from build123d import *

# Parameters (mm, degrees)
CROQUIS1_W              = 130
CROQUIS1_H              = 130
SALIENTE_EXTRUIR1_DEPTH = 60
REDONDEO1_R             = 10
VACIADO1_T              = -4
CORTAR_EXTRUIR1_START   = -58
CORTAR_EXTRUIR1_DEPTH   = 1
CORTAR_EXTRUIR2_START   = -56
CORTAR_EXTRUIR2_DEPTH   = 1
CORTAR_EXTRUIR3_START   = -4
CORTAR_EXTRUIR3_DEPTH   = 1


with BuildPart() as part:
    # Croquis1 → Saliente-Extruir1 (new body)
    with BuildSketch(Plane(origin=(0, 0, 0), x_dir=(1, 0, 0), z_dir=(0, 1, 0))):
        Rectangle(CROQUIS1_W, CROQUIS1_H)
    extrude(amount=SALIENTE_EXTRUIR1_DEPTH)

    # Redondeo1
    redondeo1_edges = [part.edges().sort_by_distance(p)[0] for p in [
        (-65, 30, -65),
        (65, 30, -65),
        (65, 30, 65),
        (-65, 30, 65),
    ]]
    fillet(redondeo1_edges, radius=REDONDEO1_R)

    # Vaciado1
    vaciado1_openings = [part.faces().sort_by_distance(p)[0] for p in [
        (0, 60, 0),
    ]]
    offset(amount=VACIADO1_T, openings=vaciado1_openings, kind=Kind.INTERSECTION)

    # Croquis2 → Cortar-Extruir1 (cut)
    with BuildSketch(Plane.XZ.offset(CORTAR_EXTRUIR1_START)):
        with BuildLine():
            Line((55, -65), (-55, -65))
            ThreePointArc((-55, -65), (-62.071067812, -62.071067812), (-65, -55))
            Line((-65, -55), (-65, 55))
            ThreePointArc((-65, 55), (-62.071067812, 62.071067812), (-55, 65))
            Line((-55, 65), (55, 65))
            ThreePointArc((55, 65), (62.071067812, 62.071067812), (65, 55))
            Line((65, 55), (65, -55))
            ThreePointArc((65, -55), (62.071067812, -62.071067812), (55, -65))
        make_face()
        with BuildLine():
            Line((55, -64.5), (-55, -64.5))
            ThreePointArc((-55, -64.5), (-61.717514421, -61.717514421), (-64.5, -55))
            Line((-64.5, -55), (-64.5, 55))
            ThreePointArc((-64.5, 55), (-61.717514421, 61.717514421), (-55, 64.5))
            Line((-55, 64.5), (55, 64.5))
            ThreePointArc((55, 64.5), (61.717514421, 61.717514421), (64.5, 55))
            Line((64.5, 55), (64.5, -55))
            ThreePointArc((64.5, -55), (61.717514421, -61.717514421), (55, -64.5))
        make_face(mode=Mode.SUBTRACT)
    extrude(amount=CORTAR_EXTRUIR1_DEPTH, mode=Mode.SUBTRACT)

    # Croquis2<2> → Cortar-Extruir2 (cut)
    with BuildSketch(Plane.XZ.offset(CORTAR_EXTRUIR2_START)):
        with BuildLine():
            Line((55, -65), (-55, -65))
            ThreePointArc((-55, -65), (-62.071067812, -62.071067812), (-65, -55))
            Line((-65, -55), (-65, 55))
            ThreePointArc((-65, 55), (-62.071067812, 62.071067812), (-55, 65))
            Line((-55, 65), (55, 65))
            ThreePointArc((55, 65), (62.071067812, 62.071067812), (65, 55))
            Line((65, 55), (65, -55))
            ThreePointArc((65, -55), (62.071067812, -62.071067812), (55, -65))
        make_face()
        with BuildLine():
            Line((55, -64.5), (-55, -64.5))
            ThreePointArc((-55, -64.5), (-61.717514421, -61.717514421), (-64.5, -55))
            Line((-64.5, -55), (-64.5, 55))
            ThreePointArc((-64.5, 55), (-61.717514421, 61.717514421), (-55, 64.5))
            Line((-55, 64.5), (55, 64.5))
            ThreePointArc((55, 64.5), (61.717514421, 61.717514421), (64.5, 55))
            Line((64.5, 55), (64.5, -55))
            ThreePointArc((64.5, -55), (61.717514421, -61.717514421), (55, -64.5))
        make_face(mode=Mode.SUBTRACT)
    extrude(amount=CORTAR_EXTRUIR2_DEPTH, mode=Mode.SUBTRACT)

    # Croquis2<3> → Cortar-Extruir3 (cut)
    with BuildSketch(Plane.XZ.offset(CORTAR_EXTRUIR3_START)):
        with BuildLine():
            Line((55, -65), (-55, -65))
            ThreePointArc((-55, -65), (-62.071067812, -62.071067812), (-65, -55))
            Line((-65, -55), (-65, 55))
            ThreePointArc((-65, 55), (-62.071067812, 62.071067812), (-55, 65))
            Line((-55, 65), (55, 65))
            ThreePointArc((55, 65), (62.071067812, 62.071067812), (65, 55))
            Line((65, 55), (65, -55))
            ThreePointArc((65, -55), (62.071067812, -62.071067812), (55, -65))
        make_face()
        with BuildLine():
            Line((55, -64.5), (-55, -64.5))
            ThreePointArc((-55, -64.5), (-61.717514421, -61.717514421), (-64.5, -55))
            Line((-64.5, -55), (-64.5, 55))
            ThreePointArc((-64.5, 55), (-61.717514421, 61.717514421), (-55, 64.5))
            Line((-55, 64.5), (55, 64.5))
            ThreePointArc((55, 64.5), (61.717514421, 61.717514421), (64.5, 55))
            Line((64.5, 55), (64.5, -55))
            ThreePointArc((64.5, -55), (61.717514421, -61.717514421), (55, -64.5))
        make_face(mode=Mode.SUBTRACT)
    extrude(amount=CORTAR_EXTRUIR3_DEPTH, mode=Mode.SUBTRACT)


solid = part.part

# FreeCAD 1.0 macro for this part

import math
import FreeCAD as App
import Part
import Sketcher


def edges_at(feature, points):
    """Names of the edges that pass closest to the given points."""
    edges = feature.Shape.Edges
    near = lambda p: min(range(len(edges)), key=lambda i: edges[i].distToShape(Part.Vertex(*p))[0])
    return sorted({f"Edge{near(p) + 1}" for p in points})


def faces_at(feature, points):
    """Names of the faces that lie closest to the given points."""
    faces = feature.Shape.Faces
    near = lambda p: min(range(len(faces)), key=lambda i: faces[i].distToShape(Part.Vertex(*p))[0])
    return sorted({f"Face{near(p) + 1}" for p in points})

doc = App.newDocument("Part")
body = doc.addObject("PartDesign::Body", "Body")

sketch1 = doc.addObject("Sketcher::SketchObject", "Sketch")
body.addObject(sketch1)
sketch1.AttachmentSupport = (doc.XZ_Plane, [""])
sketch1.MapMode = "FlatFace"
sketch1.addGeometry(Part.LineSegment(App.Vector(-65, -65, 0), App.Vector(-65, 65, 0)), False)
sketch1.addGeometry(Part.LineSegment(App.Vector(-65, 65, 0), App.Vector(65, 65, 0)), False)
sketch1.addGeometry(Part.LineSegment(App.Vector(65, 65, 0), App.Vector(65, -65, 0)), False)
sketch1.addGeometry(Part.LineSegment(App.Vector(65, -65, 0), App.Vector(-65, -65, 0)), False)
sketch1.addConstraint(Sketcher.Constraint("Coincident", 0, 2, 1, 1))
sketch1.addConstraint(Sketcher.Constraint("Coincident", 1, 2, 2, 1))
sketch1.addConstraint(Sketcher.Constraint("Coincident", 2, 2, 3, 1))
sketch1.addConstraint(Sketcher.Constraint("Coincident", 3, 2, 0, 1))
sketch1.addConstraint(Sketcher.Constraint("Vertical", 0))
sketch1.addConstraint(Sketcher.Constraint("Horizontal", 1))
sketch1.addConstraint(Sketcher.Constraint("Vertical", 2))
sketch1.addConstraint(Sketcher.Constraint("Horizontal", 3))
sketch1.addConstraint(Sketcher.Constraint("Symmetric", 0, 2, 2, 2, -1, 1))
sketch1.addConstraint(Sketcher.Constraint("Equal", 3, 0))
sketch1.addConstraint(Sketcher.Constraint("DistanceX", 1, 1, 1, 2, 130.0))
pad1 = doc.addObject("PartDesign::Pad", "Pad")
body.addObject(pad1)
pad1.Profile = sketch1
pad1.Length = 60
pad1.Reversed = True
doc.recompute()

fillet = doc.addObject("PartDesign::Fillet", "Fillet")
body.addObject(fillet)
fillet.Base = (pad1, edges_at(pad1, [
    (-65, 30, -65),
    (65, 30, -65),
    (65, 30, 65),
    (-65, 30, 65),
]))
fillet.Radius = 10
doc.recompute()

thickness = doc.addObject("PartDesign::Thickness", "Thickness")
body.addObject(thickness)
thickness.Base = (fillet, faces_at(fillet, [(0, 60, 0)]))
thickness.Value = 4
thickness.Reversed = True
thickness.Join = "Intersection"

sketch2 = doc.addObject("Sketcher::SketchObject", "Sketch001")
body.addObject(sketch2)
sketch2.AttachmentSupport = (doc.XZ_Plane, [""])
sketch2.MapMode = "FlatFace"
sketch2.AttachmentOffset = App.Placement(App.Vector(0, 0, -58), App.Rotation())
sketch2.addGeometry(Part.LineSegment(App.Vector(-55, -65, 0), App.Vector(55, -65, 0)), False)
sketch2.addGeometry(Part.ArcOfCircle(Part.Circle(App.Vector(55, -55, 0), App.Vector(0, 0, 1), 10), math.radians(-90), math.radians(0)), False)
sketch2.addGeometry(Part.LineSegment(App.Vector(65, -55, 0), App.Vector(65, 55, 0)), False)
sketch2.addGeometry(Part.ArcOfCircle(Part.Circle(App.Vector(55, 55, 0), App.Vector(0, 0, 1), 10), math.radians(0), math.radians(90)), False)
sketch2.addGeometry(Part.LineSegment(App.Vector(55, 65, 0), App.Vector(-55, 65, 0)), False)
sketch2.addGeometry(Part.ArcOfCircle(Part.Circle(App.Vector(-55, 55, 0), App.Vector(0, 0, 1), 10), math.radians(90), math.radians(180)), False)
sketch2.addGeometry(Part.LineSegment(App.Vector(-65, 55, 0), App.Vector(-65, -55, 0)), False)
sketch2.addGeometry(Part.ArcOfCircle(Part.Circle(App.Vector(-55, -55, 0), App.Vector(0, 0, 1), 10), math.radians(180), math.radians(270)), False)
sketch2.addGeometry(Part.LineSegment(App.Vector(55, -64.5, 0), App.Vector(-55, -64.5, 0)), False)
sketch2.addGeometry(Part.ArcOfCircle(Part.Circle(App.Vector(-55, -55, 0), App.Vector(0, 0, 1), 9.5), math.radians(-180), math.radians(-90)), False)
sketch2.addGeometry(Part.LineSegment(App.Vector(-64.5, -55, 0), App.Vector(-64.5, 55, 0)), False)
sketch2.addGeometry(Part.ArcOfCircle(Part.Circle(App.Vector(-55, 55, 0), App.Vector(0, 0, 1), 9.5), math.radians(90), math.radians(180)), False)
sketch2.addGeometry(Part.LineSegment(App.Vector(-55, 64.5, 0), App.Vector(55, 64.5, 0)), False)
sketch2.addGeometry(Part.ArcOfCircle(Part.Circle(App.Vector(55, 55, 0), App.Vector(0, 0, 1), 9.5), math.radians(0), math.radians(90)), False)
sketch2.addGeometry(Part.LineSegment(App.Vector(64.5, 55, 0), App.Vector(64.5, -55, 0)), False)
sketch2.addGeometry(Part.ArcOfCircle(Part.Circle(App.Vector(55, -55, 0), App.Vector(0, 0, 1), 9.5), math.radians(-90), math.radians(0)), False)
sketch2.addConstraint(Sketcher.Constraint("Tangent", 0, 2, 1, 1))
sketch2.addConstraint(Sketcher.Constraint("Tangent", 1, 2, 2, 1))
sketch2.addConstraint(Sketcher.Constraint("Tangent", 2, 2, 3, 1))
sketch2.addConstraint(Sketcher.Constraint("Tangent", 3, 2, 4, 1))
sketch2.addConstraint(Sketcher.Constraint("Tangent", 4, 2, 5, 1))
sketch2.addConstraint(Sketcher.Constraint("Tangent", 5, 2, 6, 1))
sketch2.addConstraint(Sketcher.Constraint("Tangent", 6, 2, 7, 1))
sketch2.addConstraint(Sketcher.Constraint("Tangent", 7, 2, 0, 1))
sketch2.addConstraint(Sketcher.Constraint("Tangent", 8, 2, 9, 2))
sketch2.addConstraint(Sketcher.Constraint("Tangent", 9, 1, 10, 1))
sketch2.addConstraint(Sketcher.Constraint("Tangent", 10, 2, 11, 2))
sketch2.addConstraint(Sketcher.Constraint("Tangent", 11, 1, 12, 1))
sketch2.addConstraint(Sketcher.Constraint("Tangent", 12, 2, 13, 2))
sketch2.addConstraint(Sketcher.Constraint("Tangent", 13, 1, 14, 1))
sketch2.addConstraint(Sketcher.Constraint("Tangent", 14, 2, 15, 2))
sketch2.addConstraint(Sketcher.Constraint("Tangent", 15, 1, 8, 1))
sketch2.addConstraint(Sketcher.Constraint("Horizontal", 0))
sketch2.addConstraint(Sketcher.Constraint("Vertical", 2))
sketch2.addConstraint(Sketcher.Constraint("Horizontal", 4))
sketch2.addConstraint(Sketcher.Constraint("Vertical", 6))
sketch2.addConstraint(Sketcher.Constraint("Horizontal", 8))
sketch2.addConstraint(Sketcher.Constraint("Vertical", 10))
sketch2.addConstraint(Sketcher.Constraint("Horizontal", 12))
sketch2.addConstraint(Sketcher.Constraint("Vertical", 14))
sketch2.addConstraint(Sketcher.Constraint("Coincident", 9, 3, 7, 3))
sketch2.addConstraint(Sketcher.Constraint("Coincident", 11, 3, 5, 3))
sketch2.addConstraint(Sketcher.Constraint("Coincident", 13, 3, 3, 3))
sketch2.addConstraint(Sketcher.Constraint("Equal", 1, 3))
sketch2.addConstraint(Sketcher.Constraint("Equal", 3, 5))
sketch2.addConstraint(Sketcher.Constraint("Equal", 5, 7))
sketch2.addConstraint(Sketcher.Constraint("Equal", 13, 15))
sketch2.addConstraint(Sketcher.Constraint("Symmetric", 1, 3, 5, 3, -1, 1))
sketch2.addConstraint(Sketcher.Constraint("Equal", 12, 2))
sketch2.addConstraint(Sketcher.Constraint("Radius", 1, 10.0))
sketch2.addConstraint(Sketcher.Constraint("Radius", 9, 9.5))
sketch2.addConstraint(Sketcher.Constraint("DistanceX", 0, 1, 0, 2, 110.0))
pocket1 = doc.addObject("PartDesign::Pocket", "Pocket")
body.addObject(pocket1)
pocket1.Profile = sketch2
pocket1.Length = 1
pocket1.Reversed = True

sketch3 = doc.addObject("Sketcher::SketchObject", "Sketch002")
body.addObject(sketch3)
sketch3.AttachmentSupport = (doc.XZ_Plane, [""])
sketch3.MapMode = "FlatFace"
sketch3.AttachmentOffset = App.Placement(App.Vector(0, 0, -56), App.Rotation())
sketch3.addGeometry(Part.LineSegment(App.Vector(-55, -65, 0), App.Vector(55, -65, 0)), False)
sketch3.addGeometry(Part.ArcOfCircle(Part.Circle(App.Vector(55, -55, 0), App.Vector(0, 0, 1), 10), math.radians(-90), math.radians(0)), False)
sketch3.addGeometry(Part.LineSegment(App.Vector(65, -55, 0), App.Vector(65, 55, 0)), False)
sketch3.addGeometry(Part.ArcOfCircle(Part.Circle(App.Vector(55, 55, 0), App.Vector(0, 0, 1), 10), math.radians(0), math.radians(90)), False)
sketch3.addGeometry(Part.LineSegment(App.Vector(55, 65, 0), App.Vector(-55, 65, 0)), False)
sketch3.addGeometry(Part.ArcOfCircle(Part.Circle(App.Vector(-55, 55, 0), App.Vector(0, 0, 1), 10), math.radians(90), math.radians(180)), False)
sketch3.addGeometry(Part.LineSegment(App.Vector(-65, 55, 0), App.Vector(-65, -55, 0)), False)
sketch3.addGeometry(Part.ArcOfCircle(Part.Circle(App.Vector(-55, -55, 0), App.Vector(0, 0, 1), 10), math.radians(180), math.radians(270)), False)
sketch3.addGeometry(Part.LineSegment(App.Vector(55, -64.5, 0), App.Vector(-55, -64.5, 0)), False)
sketch3.addGeometry(Part.ArcOfCircle(Part.Circle(App.Vector(-55, -55, 0), App.Vector(0, 0, 1), 9.5), math.radians(-180), math.radians(-90)), False)
sketch3.addGeometry(Part.LineSegment(App.Vector(-64.5, -55, 0), App.Vector(-64.5, 55, 0)), False)
sketch3.addGeometry(Part.ArcOfCircle(Part.Circle(App.Vector(-55, 55, 0), App.Vector(0, 0, 1), 9.5), math.radians(90), math.radians(180)), False)
sketch3.addGeometry(Part.LineSegment(App.Vector(-55, 64.5, 0), App.Vector(55, 64.5, 0)), False)
sketch3.addGeometry(Part.ArcOfCircle(Part.Circle(App.Vector(55, 55, 0), App.Vector(0, 0, 1), 9.5), math.radians(0), math.radians(90)), False)
sketch3.addGeometry(Part.LineSegment(App.Vector(64.5, 55, 0), App.Vector(64.5, -55, 0)), False)
sketch3.addGeometry(Part.ArcOfCircle(Part.Circle(App.Vector(55, -55, 0), App.Vector(0, 0, 1), 9.5), math.radians(-90), math.radians(0)), False)
sketch3.addConstraint(Sketcher.Constraint("Tangent", 0, 2, 1, 1))
sketch3.addConstraint(Sketcher.Constraint("Tangent", 1, 2, 2, 1))
sketch3.addConstraint(Sketcher.Constraint("Tangent", 2, 2, 3, 1))
sketch3.addConstraint(Sketcher.Constraint("Tangent", 3, 2, 4, 1))
sketch3.addConstraint(Sketcher.Constraint("Tangent", 4, 2, 5, 1))
sketch3.addConstraint(Sketcher.Constraint("Tangent", 5, 2, 6, 1))
sketch3.addConstraint(Sketcher.Constraint("Tangent", 6, 2, 7, 1))
sketch3.addConstraint(Sketcher.Constraint("Tangent", 7, 2, 0, 1))
sketch3.addConstraint(Sketcher.Constraint("Tangent", 8, 2, 9, 2))
sketch3.addConstraint(Sketcher.Constraint("Tangent", 9, 1, 10, 1))
sketch3.addConstraint(Sketcher.Constraint("Tangent", 10, 2, 11, 2))
sketch3.addConstraint(Sketcher.Constraint("Tangent", 11, 1, 12, 1))
sketch3.addConstraint(Sketcher.Constraint("Tangent", 12, 2, 13, 2))
sketch3.addConstraint(Sketcher.Constraint("Tangent", 13, 1, 14, 1))
sketch3.addConstraint(Sketcher.Constraint("Tangent", 14, 2, 15, 2))
sketch3.addConstraint(Sketcher.Constraint("Tangent", 15, 1, 8, 1))
sketch3.addConstraint(Sketcher.Constraint("Horizontal", 0))
sketch3.addConstraint(Sketcher.Constraint("Vertical", 2))
sketch3.addConstraint(Sketcher.Constraint("Horizontal", 4))
sketch3.addConstraint(Sketcher.Constraint("Vertical", 6))
sketch3.addConstraint(Sketcher.Constraint("Horizontal", 8))
sketch3.addConstraint(Sketcher.Constraint("Vertical", 10))
sketch3.addConstraint(Sketcher.Constraint("Horizontal", 12))
sketch3.addConstraint(Sketcher.Constraint("Vertical", 14))
sketch3.addConstraint(Sketcher.Constraint("Coincident", 9, 3, 7, 3))
sketch3.addConstraint(Sketcher.Constraint("Coincident", 11, 3, 5, 3))
sketch3.addConstraint(Sketcher.Constraint("Coincident", 13, 3, 3, 3))
sketch3.addConstraint(Sketcher.Constraint("Equal", 1, 3))
sketch3.addConstraint(Sketcher.Constraint("Equal", 3, 5))
sketch3.addConstraint(Sketcher.Constraint("Equal", 5, 7))
sketch3.addConstraint(Sketcher.Constraint("Equal", 13, 15))
sketch3.addConstraint(Sketcher.Constraint("Symmetric", 1, 3, 5, 3, -1, 1))
sketch3.addConstraint(Sketcher.Constraint("Equal", 12, 2))
sketch3.addConstraint(Sketcher.Constraint("Radius", 1, 10.0))
sketch3.addConstraint(Sketcher.Constraint("Radius", 9, 9.5))
sketch3.addConstraint(Sketcher.Constraint("DistanceX", 0, 1, 0, 2, 110.0))
pocket2 = doc.addObject("PartDesign::Pocket", "Pocket001")
body.addObject(pocket2)
pocket2.Profile = sketch3
pocket2.Length = 1
pocket2.Reversed = True

sketch4 = doc.addObject("Sketcher::SketchObject", "Sketch003")
body.addObject(sketch4)
sketch4.AttachmentSupport = (doc.XZ_Plane, [""])
sketch4.MapMode = "FlatFace"
sketch4.AttachmentOffset = App.Placement(App.Vector(0, 0, -4), App.Rotation())
sketch4.addGeometry(Part.LineSegment(App.Vector(-55, -65, 0), App.Vector(55, -65, 0)), False)
sketch4.addGeometry(Part.ArcOfCircle(Part.Circle(App.Vector(55, -55, 0), App.Vector(0, 0, 1), 10), math.radians(-90), math.radians(0)), False)
sketch4.addGeometry(Part.LineSegment(App.Vector(65, -55, 0), App.Vector(65, 55, 0)), False)
sketch4.addGeometry(Part.ArcOfCircle(Part.Circle(App.Vector(55, 55, 0), App.Vector(0, 0, 1), 10), math.radians(0), math.radians(90)), False)
sketch4.addGeometry(Part.LineSegment(App.Vector(55, 65, 0), App.Vector(-55, 65, 0)), False)
sketch4.addGeometry(Part.ArcOfCircle(Part.Circle(App.Vector(-55, 55, 0), App.Vector(0, 0, 1), 10), math.radians(90), math.radians(180)), False)
sketch4.addGeometry(Part.LineSegment(App.Vector(-65, 55, 0), App.Vector(-65, -55, 0)), False)
sketch4.addGeometry(Part.ArcOfCircle(Part.Circle(App.Vector(-55, -55, 0), App.Vector(0, 0, 1), 10), math.radians(180), math.radians(270)), False)
sketch4.addGeometry(Part.LineSegment(App.Vector(55, -64.5, 0), App.Vector(-55, -64.5, 0)), False)
sketch4.addGeometry(Part.ArcOfCircle(Part.Circle(App.Vector(-55, -55, 0), App.Vector(0, 0, 1), 9.5), math.radians(-180), math.radians(-90)), False)
sketch4.addGeometry(Part.LineSegment(App.Vector(-64.5, -55, 0), App.Vector(-64.5, 55, 0)), False)
sketch4.addGeometry(Part.ArcOfCircle(Part.Circle(App.Vector(-55, 55, 0), App.Vector(0, 0, 1), 9.5), math.radians(90), math.radians(180)), False)
sketch4.addGeometry(Part.LineSegment(App.Vector(-55, 64.5, 0), App.Vector(55, 64.5, 0)), False)
sketch4.addGeometry(Part.ArcOfCircle(Part.Circle(App.Vector(55, 55, 0), App.Vector(0, 0, 1), 9.5), math.radians(0), math.radians(90)), False)
sketch4.addGeometry(Part.LineSegment(App.Vector(64.5, 55, 0), App.Vector(64.5, -55, 0)), False)
sketch4.addGeometry(Part.ArcOfCircle(Part.Circle(App.Vector(55, -55, 0), App.Vector(0, 0, 1), 9.5), math.radians(-90), math.radians(0)), False)
sketch4.addConstraint(Sketcher.Constraint("Tangent", 0, 2, 1, 1))
sketch4.addConstraint(Sketcher.Constraint("Tangent", 1, 2, 2, 1))
sketch4.addConstraint(Sketcher.Constraint("Tangent", 2, 2, 3, 1))
sketch4.addConstraint(Sketcher.Constraint("Tangent", 3, 2, 4, 1))
sketch4.addConstraint(Sketcher.Constraint("Tangent", 4, 2, 5, 1))
sketch4.addConstraint(Sketcher.Constraint("Tangent", 5, 2, 6, 1))
sketch4.addConstraint(Sketcher.Constraint("Tangent", 6, 2, 7, 1))
sketch4.addConstraint(Sketcher.Constraint("Tangent", 7, 2, 0, 1))
sketch4.addConstraint(Sketcher.Constraint("Tangent", 8, 2, 9, 2))
sketch4.addConstraint(Sketcher.Constraint("Tangent", 9, 1, 10, 1))
sketch4.addConstraint(Sketcher.Constraint("Tangent", 10, 2, 11, 2))
sketch4.addConstraint(Sketcher.Constraint("Tangent", 11, 1, 12, 1))
sketch4.addConstraint(Sketcher.Constraint("Tangent", 12, 2, 13, 2))
sketch4.addConstraint(Sketcher.Constraint("Tangent", 13, 1, 14, 1))
sketch4.addConstraint(Sketcher.Constraint("Tangent", 14, 2, 15, 2))
sketch4.addConstraint(Sketcher.Constraint("Tangent", 15, 1, 8, 1))
sketch4.addConstraint(Sketcher.Constraint("Horizontal", 0))
sketch4.addConstraint(Sketcher.Constraint("Vertical", 2))
sketch4.addConstraint(Sketcher.Constraint("Horizontal", 4))
sketch4.addConstraint(Sketcher.Constraint("Vertical", 6))
sketch4.addConstraint(Sketcher.Constraint("Horizontal", 8))
sketch4.addConstraint(Sketcher.Constraint("Vertical", 10))
sketch4.addConstraint(Sketcher.Constraint("Horizontal", 12))
sketch4.addConstraint(Sketcher.Constraint("Vertical", 14))
sketch4.addConstraint(Sketcher.Constraint("Coincident", 9, 3, 7, 3))
sketch4.addConstraint(Sketcher.Constraint("Coincident", 11, 3, 5, 3))
sketch4.addConstraint(Sketcher.Constraint("Coincident", 13, 3, 3, 3))
sketch4.addConstraint(Sketcher.Constraint("Equal", 1, 3))
sketch4.addConstraint(Sketcher.Constraint("Equal", 3, 5))
sketch4.addConstraint(Sketcher.Constraint("Equal", 5, 7))
sketch4.addConstraint(Sketcher.Constraint("Equal", 13, 15))
sketch4.addConstraint(Sketcher.Constraint("Symmetric", 1, 3, 5, 3, -1, 1))
sketch4.addConstraint(Sketcher.Constraint("Equal", 12, 2))
sketch4.addConstraint(Sketcher.Constraint("Radius", 1, 10.0))
sketch4.addConstraint(Sketcher.Constraint("Radius", 9, 9.5))
sketch4.addConstraint(Sketcher.Constraint("DistanceX", 0, 1, 0, 2, 110.0))
pocket3 = doc.addObject("PartDesign::Pocket", "Pocket002")
body.addObject(pocket3)
pocket3.Profile = sketch4
pocket3.Length = 1
pocket3.Reversed = True

doc.recompute()
